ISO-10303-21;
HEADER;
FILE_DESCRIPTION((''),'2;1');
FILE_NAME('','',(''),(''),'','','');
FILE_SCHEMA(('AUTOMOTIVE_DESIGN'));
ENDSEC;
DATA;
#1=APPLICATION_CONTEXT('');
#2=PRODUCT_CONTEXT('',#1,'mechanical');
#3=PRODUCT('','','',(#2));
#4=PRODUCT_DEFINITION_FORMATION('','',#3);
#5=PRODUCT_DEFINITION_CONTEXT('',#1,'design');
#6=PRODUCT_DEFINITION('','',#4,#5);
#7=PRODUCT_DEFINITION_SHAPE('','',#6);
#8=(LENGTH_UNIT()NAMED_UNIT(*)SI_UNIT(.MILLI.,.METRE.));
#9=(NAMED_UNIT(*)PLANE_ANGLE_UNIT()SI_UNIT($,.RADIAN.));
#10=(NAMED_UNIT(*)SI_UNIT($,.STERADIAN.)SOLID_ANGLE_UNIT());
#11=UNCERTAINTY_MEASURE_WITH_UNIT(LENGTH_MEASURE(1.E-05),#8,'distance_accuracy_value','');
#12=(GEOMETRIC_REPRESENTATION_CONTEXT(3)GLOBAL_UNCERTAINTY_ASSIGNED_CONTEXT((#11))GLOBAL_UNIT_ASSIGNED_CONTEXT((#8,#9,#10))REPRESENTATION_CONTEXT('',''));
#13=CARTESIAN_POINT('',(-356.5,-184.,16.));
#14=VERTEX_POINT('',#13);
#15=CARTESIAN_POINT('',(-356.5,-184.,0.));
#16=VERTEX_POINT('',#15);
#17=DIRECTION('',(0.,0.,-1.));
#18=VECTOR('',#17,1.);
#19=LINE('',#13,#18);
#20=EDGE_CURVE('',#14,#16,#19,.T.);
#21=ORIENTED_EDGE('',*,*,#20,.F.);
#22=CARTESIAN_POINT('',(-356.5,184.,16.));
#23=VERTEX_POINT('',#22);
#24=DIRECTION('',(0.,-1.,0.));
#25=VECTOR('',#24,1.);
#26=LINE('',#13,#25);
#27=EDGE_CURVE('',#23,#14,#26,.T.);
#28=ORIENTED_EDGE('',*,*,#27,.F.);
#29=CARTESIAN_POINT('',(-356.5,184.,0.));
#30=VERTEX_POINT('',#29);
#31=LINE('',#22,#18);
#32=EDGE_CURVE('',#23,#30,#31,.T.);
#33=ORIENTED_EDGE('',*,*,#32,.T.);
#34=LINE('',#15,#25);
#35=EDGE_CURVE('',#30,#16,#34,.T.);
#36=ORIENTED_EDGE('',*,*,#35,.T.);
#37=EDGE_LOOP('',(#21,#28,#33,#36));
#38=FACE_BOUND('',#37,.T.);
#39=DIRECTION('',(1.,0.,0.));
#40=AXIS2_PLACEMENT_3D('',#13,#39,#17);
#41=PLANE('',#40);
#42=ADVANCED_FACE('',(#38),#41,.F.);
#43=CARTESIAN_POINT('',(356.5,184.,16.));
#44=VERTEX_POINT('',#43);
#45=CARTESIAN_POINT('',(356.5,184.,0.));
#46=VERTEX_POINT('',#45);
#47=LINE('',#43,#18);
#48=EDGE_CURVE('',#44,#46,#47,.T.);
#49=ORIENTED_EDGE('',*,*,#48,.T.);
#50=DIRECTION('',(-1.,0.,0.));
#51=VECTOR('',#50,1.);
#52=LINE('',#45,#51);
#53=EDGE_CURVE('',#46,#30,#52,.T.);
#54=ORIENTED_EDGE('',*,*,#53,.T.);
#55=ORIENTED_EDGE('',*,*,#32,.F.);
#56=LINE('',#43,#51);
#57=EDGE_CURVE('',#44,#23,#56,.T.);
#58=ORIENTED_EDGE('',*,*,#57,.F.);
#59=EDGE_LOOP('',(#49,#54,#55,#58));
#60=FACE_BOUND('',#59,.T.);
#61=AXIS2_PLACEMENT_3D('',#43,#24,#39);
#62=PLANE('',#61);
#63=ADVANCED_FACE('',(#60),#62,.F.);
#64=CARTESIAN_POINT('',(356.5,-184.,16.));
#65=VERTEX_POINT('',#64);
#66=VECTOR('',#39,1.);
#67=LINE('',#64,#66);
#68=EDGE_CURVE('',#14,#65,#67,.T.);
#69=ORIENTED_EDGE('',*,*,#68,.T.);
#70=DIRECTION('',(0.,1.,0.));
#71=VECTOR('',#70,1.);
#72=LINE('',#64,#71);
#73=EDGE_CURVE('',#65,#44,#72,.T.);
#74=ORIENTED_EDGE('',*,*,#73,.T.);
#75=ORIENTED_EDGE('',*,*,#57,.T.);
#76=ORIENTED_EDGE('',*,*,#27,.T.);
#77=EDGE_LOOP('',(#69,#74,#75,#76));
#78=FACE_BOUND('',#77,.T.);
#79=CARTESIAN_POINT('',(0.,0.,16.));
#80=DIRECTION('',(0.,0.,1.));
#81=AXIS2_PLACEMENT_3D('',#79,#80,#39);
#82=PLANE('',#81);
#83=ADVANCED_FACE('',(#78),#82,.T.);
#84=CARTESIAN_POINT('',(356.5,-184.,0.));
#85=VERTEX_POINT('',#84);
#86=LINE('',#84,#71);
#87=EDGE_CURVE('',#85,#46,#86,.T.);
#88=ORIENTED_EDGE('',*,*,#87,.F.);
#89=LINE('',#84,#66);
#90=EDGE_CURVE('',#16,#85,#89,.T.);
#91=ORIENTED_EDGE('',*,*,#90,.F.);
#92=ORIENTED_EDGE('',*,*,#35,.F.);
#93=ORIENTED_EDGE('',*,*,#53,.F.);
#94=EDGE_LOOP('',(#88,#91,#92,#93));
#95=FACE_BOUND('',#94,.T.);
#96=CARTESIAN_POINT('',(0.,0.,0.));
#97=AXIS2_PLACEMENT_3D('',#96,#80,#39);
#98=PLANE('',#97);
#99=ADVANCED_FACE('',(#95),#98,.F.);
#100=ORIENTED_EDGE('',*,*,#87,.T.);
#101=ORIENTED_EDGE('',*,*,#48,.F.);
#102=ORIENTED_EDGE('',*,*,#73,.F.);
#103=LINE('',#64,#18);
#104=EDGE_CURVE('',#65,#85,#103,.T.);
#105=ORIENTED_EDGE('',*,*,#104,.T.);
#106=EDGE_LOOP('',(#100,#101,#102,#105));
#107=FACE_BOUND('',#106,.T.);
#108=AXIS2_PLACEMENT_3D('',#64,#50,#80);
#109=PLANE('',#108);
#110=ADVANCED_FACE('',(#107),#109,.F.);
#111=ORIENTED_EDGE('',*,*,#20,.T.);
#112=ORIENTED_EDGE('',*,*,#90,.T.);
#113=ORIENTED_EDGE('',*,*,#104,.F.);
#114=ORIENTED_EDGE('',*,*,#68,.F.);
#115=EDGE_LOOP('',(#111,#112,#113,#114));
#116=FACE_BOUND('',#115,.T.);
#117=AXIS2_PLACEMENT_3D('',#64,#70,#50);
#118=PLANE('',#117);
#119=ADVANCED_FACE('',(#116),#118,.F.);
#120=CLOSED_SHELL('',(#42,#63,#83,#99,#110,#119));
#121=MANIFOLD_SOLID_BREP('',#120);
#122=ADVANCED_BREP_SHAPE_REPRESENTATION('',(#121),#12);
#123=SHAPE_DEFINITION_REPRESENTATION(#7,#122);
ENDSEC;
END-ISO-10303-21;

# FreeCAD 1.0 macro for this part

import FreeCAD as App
import Part
import Sketcher

V = App.Vector

doc = App.newDocument("Part")
body = doc.addObject("PartDesign::Body", "Body")

sketch1 = doc.addObject("Sketcher::SketchObject", "Sketch")
body.addObject(sketch1)
sketch1.AttachmentSupport = (doc.XY_Plane, [""])
sketch1.MapMode = "FlatFace"
sketch1.addGeometry(Part.LineSegment(V(-356.5, 184, 0), V(-356.5, -184, 0)), False)
sketch1.addGeometry(Part.LineSegment(V(-356.5, -184, 0), V(356.5, -184, 0)), False)
sketch1.addGeometry(Part.LineSegment(V(356.5, -184, 0), V(356.5, 184, 0)), False)
sketch1.addGeometry(Part.LineSegment(V(356.5, 184, 0), V(-356.5, 184, 0)), False)
sketch1.addConstraint(Sketcher.Constraint("Coincident", 0, 2, 1, 1))
sketch1.addConstraint(Sketcher.Constraint("Coincident", 1, 2, 2, 1))
sketch1.addConstraint(Sketcher.Constraint("Coincident", 2, 2, 3, 1))
sketch1.addConstraint(Sketcher.Constraint("Coincident", 3, 2, 0, 1))
sketch1.addConstraint(Sketcher.Constraint("Vertical", 0))
sketch1.addConstraint(Sketcher.Constraint("Horizontal", 1))
sketch1.addConstraint(Sketcher.Constraint("Vertical", 2))
sketch1.addConstraint(Sketcher.Constraint("Horizontal", 3))
sketch1.addConstraint(Sketcher.Constraint("Symmetric", 0, 2, 2, 2, -1, 1))
sketch1.addConstraint(Sketcher.Constraint("DistanceX", 1, 1, 1, 2, 713.0))
sketch1.addConstraint(Sketcher.Constraint("DistanceY", 0, 2, 0, 1, 368.0))
pad1 = doc.addObject("PartDesign::Pad", "Pad")
body.addObject(pad1)
pad1.Profile = sketch1
pad1.Length = 16

doc.recompute()
